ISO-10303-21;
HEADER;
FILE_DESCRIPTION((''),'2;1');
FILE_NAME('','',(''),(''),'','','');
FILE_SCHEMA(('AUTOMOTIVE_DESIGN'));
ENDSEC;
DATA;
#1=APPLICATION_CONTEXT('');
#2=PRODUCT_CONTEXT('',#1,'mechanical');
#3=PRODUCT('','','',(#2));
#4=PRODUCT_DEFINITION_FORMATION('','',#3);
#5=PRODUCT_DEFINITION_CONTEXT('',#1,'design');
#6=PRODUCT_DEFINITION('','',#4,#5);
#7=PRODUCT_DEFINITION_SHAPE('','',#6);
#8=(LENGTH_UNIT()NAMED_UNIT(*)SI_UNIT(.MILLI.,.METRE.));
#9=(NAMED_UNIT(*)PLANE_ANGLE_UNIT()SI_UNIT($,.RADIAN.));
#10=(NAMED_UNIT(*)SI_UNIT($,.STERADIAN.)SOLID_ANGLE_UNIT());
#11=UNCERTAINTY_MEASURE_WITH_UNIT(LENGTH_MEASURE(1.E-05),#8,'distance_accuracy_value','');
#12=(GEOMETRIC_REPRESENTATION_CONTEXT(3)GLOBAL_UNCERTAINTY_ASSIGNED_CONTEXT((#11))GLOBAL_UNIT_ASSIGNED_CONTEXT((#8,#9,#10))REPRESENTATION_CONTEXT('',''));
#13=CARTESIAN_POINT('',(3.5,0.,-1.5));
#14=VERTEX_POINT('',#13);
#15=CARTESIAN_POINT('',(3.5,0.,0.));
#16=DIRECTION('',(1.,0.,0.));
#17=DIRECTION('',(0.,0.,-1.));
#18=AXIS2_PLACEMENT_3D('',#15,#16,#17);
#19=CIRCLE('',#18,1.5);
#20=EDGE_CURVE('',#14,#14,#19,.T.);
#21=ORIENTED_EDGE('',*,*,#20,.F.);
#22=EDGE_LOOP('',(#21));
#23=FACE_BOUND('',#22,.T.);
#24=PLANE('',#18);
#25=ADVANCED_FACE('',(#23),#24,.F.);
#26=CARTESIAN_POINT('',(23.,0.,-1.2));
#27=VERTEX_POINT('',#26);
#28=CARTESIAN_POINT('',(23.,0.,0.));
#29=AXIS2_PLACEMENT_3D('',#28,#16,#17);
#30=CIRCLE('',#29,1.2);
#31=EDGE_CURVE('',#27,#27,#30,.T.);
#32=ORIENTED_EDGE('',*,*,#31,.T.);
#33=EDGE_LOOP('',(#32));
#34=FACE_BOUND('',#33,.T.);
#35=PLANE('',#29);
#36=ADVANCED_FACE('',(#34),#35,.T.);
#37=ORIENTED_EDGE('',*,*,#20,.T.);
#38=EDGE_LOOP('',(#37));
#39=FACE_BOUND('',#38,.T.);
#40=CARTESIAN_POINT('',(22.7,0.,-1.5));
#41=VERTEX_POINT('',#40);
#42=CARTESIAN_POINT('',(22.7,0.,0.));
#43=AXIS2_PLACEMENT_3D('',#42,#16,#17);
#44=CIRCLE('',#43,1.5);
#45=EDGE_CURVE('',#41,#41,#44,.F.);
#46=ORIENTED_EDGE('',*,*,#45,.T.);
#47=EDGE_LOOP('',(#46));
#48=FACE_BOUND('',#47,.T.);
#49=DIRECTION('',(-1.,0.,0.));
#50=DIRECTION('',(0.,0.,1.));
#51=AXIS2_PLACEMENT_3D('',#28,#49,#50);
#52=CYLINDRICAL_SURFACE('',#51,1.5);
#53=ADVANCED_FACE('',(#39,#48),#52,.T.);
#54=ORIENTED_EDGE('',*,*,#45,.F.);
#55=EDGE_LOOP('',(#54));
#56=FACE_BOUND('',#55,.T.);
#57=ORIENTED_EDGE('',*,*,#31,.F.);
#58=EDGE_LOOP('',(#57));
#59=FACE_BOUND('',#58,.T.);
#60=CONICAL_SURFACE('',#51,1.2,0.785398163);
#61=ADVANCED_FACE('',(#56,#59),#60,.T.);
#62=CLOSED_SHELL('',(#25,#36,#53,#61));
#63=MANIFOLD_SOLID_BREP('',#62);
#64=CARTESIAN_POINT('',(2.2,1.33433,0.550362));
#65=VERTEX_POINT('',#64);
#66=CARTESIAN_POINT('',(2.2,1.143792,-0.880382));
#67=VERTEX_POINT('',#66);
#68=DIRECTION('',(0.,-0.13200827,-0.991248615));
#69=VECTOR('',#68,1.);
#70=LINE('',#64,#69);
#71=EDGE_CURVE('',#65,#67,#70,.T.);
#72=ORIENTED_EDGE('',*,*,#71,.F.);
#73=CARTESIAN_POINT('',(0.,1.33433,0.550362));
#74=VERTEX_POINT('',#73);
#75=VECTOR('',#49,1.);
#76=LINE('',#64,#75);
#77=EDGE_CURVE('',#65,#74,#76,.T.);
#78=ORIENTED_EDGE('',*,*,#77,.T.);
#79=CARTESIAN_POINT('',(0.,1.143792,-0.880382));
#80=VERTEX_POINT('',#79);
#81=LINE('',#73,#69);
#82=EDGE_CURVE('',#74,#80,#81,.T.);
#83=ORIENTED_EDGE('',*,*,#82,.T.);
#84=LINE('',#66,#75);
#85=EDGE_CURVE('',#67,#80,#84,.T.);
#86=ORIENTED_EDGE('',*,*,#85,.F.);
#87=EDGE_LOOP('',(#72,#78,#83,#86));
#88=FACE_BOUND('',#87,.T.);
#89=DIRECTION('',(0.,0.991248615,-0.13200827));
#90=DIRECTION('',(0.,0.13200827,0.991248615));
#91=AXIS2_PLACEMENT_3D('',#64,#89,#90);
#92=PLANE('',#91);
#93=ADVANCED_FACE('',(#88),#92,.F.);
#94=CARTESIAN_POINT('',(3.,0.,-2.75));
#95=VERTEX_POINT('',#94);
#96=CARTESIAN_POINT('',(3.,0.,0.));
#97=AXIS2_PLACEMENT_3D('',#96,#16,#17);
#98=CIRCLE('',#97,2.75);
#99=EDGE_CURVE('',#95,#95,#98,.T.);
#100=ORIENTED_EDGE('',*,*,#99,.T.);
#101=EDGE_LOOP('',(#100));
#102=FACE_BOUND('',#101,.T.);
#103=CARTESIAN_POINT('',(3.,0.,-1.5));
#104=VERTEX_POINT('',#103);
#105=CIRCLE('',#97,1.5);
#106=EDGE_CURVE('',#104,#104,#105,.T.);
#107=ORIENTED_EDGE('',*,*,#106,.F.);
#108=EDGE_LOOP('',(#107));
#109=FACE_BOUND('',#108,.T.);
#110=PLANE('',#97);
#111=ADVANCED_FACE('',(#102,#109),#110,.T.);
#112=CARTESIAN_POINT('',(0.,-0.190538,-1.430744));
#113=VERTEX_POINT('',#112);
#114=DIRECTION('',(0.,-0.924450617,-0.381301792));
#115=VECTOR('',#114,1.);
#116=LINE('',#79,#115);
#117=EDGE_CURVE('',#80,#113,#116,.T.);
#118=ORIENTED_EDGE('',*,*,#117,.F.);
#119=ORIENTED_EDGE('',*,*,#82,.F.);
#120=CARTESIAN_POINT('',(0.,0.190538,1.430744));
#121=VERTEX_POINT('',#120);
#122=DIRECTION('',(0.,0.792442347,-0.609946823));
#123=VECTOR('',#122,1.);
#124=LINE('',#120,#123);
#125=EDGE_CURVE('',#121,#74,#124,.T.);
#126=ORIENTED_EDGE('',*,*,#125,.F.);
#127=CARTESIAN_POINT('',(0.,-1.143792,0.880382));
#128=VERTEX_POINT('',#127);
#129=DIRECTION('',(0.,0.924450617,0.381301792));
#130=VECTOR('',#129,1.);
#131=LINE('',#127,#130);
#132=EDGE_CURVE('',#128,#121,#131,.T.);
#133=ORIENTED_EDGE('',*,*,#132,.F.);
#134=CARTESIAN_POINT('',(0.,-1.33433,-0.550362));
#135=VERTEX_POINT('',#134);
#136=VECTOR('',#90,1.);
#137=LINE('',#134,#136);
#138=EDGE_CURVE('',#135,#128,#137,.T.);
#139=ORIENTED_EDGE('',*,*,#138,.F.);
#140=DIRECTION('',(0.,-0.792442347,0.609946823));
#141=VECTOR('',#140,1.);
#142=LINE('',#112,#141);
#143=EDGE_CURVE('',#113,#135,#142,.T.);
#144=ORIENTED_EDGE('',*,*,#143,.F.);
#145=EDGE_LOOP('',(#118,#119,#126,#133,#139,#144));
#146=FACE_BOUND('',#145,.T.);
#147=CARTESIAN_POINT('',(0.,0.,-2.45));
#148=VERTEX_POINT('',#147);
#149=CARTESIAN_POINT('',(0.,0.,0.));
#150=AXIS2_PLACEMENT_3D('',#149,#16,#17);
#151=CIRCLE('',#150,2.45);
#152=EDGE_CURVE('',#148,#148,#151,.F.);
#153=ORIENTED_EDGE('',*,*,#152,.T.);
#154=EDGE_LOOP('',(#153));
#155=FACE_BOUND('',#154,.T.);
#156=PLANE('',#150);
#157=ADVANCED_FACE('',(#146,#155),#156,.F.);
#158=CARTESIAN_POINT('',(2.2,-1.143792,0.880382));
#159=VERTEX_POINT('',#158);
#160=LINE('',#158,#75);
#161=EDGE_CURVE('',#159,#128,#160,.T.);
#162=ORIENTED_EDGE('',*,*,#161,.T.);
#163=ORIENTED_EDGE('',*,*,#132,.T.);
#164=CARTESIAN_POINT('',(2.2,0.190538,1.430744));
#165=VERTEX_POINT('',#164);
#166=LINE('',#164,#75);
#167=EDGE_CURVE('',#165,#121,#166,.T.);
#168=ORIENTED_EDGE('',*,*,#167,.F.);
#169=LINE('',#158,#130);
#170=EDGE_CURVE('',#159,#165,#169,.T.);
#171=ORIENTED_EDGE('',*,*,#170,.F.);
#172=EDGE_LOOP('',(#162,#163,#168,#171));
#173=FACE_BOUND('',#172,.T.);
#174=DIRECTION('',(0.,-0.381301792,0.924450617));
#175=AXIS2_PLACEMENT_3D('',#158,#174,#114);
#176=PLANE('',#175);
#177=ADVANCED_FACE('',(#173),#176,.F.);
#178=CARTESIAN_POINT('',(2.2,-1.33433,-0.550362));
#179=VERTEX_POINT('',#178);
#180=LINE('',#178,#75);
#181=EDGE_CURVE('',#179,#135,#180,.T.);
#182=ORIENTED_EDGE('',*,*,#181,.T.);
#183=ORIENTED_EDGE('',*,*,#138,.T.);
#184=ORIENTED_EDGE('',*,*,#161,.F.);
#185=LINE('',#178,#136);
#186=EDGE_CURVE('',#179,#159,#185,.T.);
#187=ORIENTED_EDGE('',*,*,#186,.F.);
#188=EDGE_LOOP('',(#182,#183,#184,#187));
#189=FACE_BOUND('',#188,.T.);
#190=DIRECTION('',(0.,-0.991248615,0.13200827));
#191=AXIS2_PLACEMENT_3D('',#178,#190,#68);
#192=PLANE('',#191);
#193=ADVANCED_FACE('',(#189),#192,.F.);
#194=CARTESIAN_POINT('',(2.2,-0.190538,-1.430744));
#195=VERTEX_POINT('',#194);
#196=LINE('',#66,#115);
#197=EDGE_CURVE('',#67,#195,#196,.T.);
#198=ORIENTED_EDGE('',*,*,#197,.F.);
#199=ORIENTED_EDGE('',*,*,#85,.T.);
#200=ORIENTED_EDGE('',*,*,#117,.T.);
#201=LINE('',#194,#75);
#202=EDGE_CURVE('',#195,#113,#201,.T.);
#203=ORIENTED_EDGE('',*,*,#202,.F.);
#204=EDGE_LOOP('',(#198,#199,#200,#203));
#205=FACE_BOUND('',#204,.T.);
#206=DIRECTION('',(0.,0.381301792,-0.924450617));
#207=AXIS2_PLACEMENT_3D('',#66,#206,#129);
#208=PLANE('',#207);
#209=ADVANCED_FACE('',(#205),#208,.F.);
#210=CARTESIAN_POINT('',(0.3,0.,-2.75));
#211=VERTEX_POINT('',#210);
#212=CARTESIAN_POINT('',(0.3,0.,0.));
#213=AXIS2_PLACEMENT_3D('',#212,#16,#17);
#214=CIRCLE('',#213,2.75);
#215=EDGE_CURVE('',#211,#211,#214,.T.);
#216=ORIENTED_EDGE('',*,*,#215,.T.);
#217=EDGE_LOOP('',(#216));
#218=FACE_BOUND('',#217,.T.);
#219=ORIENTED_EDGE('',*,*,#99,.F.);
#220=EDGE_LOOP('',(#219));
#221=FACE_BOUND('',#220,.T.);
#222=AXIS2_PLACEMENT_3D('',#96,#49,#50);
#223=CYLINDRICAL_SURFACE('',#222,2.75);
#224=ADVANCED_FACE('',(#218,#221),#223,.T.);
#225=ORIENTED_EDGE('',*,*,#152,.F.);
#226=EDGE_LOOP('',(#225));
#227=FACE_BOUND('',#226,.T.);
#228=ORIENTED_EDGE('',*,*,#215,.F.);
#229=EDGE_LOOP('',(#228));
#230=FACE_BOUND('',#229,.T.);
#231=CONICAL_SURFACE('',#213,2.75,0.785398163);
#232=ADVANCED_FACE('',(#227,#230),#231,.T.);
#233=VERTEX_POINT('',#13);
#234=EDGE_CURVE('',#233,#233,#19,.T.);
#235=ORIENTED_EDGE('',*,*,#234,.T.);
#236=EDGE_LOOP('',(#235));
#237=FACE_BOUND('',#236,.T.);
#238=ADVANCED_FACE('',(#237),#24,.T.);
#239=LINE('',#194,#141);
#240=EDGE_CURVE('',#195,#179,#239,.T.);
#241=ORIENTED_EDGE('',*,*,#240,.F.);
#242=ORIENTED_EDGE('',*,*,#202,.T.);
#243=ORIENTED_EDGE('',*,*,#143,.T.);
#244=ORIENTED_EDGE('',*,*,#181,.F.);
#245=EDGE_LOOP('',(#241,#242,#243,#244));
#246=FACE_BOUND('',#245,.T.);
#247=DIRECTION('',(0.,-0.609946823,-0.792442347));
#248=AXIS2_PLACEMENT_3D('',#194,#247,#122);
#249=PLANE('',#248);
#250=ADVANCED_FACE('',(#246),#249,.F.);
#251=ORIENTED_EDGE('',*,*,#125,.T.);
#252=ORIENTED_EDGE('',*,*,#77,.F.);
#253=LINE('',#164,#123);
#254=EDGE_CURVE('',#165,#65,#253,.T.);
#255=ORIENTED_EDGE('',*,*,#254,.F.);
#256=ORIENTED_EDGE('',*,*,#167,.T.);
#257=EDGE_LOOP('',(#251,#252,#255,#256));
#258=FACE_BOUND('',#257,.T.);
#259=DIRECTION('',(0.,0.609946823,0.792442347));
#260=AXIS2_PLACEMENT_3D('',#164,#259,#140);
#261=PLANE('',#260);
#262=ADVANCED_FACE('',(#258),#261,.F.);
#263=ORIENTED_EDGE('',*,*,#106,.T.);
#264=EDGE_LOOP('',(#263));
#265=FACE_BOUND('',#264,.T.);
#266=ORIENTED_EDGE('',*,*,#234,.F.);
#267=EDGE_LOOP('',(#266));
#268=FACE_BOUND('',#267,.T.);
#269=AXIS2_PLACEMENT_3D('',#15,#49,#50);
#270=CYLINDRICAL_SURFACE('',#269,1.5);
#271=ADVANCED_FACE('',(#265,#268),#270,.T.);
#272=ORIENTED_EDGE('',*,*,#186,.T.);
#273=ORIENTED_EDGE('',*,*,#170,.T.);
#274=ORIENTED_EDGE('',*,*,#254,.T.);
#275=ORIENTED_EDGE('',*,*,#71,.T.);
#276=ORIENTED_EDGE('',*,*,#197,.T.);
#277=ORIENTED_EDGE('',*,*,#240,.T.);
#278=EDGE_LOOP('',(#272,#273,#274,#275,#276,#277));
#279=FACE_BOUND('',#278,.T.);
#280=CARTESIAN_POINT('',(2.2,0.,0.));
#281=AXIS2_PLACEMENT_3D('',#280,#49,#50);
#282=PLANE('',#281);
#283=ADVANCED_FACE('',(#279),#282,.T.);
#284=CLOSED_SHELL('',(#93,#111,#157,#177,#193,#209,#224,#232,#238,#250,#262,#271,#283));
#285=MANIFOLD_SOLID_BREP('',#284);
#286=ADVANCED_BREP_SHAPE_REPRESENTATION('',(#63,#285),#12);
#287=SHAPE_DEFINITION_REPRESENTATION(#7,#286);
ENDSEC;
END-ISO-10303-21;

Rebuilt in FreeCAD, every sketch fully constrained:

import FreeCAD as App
import Part
import Sketcher

V = App.Vector
Q = App.Units.Quantity


def edges_at(feature, points):
    """Names of the edges that pass closest to the given points."""
    edges = feature.Shape.Edges
    near = lambda p: min(range(len(edges)), key=lambda i: edges[i].distToShape(Part.Vertex(*p))[0])
    return sorted({f"Edge{near(p) + 1}" for p in points})


def add_polygon(sketch, points):
    """Adds a closed chain of lines whose ends are joined by coincident constraints."""
    first, n = sketch.GeometryCount, len(points)
    for a, b in zip(points, points[1:] + points[:1]):
        sketch.addGeometry(Part.LineSegment(App.Vector(*a, 0), App.Vector(*b, 0)), False)
    for i in range(n):
        sketch.addConstraint(Sketcher.Constraint("Coincident", first + i, 2, first + (i + 1) % n, 1))

doc = App.newDocument("Part")
body = doc.addObject("PartDesign::Body", "Body")

sketch1 = body.newObject("Sketcher::SketchObject", "Sketch")
sketch1.AttachmentSupport = (doc.getObject("YZ_Plane"), [""])
sketch1.MapMode = "FlatFace"
sketch1.addGeometry(Part.Circle(V(0, 0, 0), V(0, 0, 1), 2.75), False)
sketch1.addConstraint(Sketcher.Constraint("Coincident", 0, 3, -1, 1))
sketch1.addConstraint(Sketcher.Constraint("Diameter", 0, Q("5.5 mm")))
pad1 = body.newObject("PartDesign::Pad", "Pad")
pad1.Profile = sketch1
pad1.Length = 3

sketch2 = body.newObject("Sketcher::SketchObject", "Sketch001")
sketch2.AttachmentSupport = (doc.getObject("YZ_Plane"), [""])
sketch2.MapMode = "FlatFace"
sketch2.AttachmentOffset = App.Placement(V(0, 0, 3), App.Rotation())
sketch2.addGeometry(Part.Circle(V(0, 0, 0), V(0, 0, 1), 1.5), False)
sketch2.addConstraint(Sketcher.Constraint("Coincident", 0, 3, -1, 1))
sketch2.addConstraint(Sketcher.Constraint("Diameter", 0, Q("3 mm")))
pad2 = body.newObject("PartDesign::Pad", "Pad001")
pad2.Profile = sketch2
pad2.Length = 0.5
doc.recompute()

chamfer = body.newObject("PartDesign::Chamfer", "Chamfer")
chamfer.Base = (pad2, edges_at(pad2, [(0, 0, 2.75)]))
chamfer.Size = 0.3

sketch3 = body.newObject("Sketcher::SketchObject", "Sketch002")
sketch3.AttachmentSupport = (doc.getObject("YZ_Plane"), [""])
sketch3.MapMode = "FlatFace"
add_polygon(sketch3, [(0.190538, 1.430744), (1.33433, 0.550362), (1.143792, -0.880382), (-0.190538, -1.430744), (-1.33433, -0.550362), (-1.143792, 0.880382)])
sketch3.addConstraint(Sketcher.Constraint("Symmetric", 0, 2, 3, 2, -1, 1))
sketch3.addConstraint(Sketcher.Constraint("Symmetric", 1, 2, 4, 2, -1, 1))
sketch3.addConstraint(Sketcher.Constraint("Symmetric", 2, 2, 5, 2, -1, 1))
sketch3.addConstraint(Sketcher.Constraint("Equal", 0, 1))
sketch3.addConstraint(Sketcher.Constraint("Equal", 1, 2))
sketch3.addConstraint(Sketcher.Constraint("DistanceX", -1, 1, 0, 2, Q("1.33433 mm")))
sketch3.addConstraint(Sketcher.Constraint("DistanceY", -1, 1, 0, 2, Q("0.550362 mm")))
sketch3.addConstraint(Sketcher.Constraint("DistanceX", 2, 2, 1, 2, Q("1.33433 mm")))
sketch3.addConstraint(Sketcher.Constraint("DistanceY", 2, 2, 1, 2, Q("0.550362 mm")))
pocket1 = body.newObject("PartDesign::Pocket", "Pocket")
pocket1.Profile = sketch3
pocket1.Length = 2.2
pocket1.Reversed = True
body2 = doc.addObject("PartDesign::Body", "Body001")

sketch4 = body2.newObject("Sketcher::SketchObject", "Sketch003")
sketch4.AttachmentSupport = (doc.getObject("YZ_Plane001"), [""])
sketch4.MapMode = "FlatFace"
sketch4.AttachmentOffset = App.Placement(V(0, 0, 3.5), App.Rotation())
sketch4.addGeometry(Part.Circle(V(0, 0, 0), V(0, 0, 1), 1.5), False)
sketch4.addConstraint(Sketcher.Constraint("Coincident", 0, 3, -1, 1))
sketch4.addConstraint(Sketcher.Constraint("Diameter", 0, Q("3 mm")))
pad3 = body2.newObject("PartDesign::Pad", "Pad002")
pad3.Profile = sketch4
pad3.Length = 19.5
doc.recompute()

chamfer2 = body2.newObject("PartDesign::Chamfer", "Chamfer001")
chamfer2.Base = (pad3, edges_at(pad3, [(23, 0, 1.5)]))
chamfer2.Size = 0.3

doc.recompute()
